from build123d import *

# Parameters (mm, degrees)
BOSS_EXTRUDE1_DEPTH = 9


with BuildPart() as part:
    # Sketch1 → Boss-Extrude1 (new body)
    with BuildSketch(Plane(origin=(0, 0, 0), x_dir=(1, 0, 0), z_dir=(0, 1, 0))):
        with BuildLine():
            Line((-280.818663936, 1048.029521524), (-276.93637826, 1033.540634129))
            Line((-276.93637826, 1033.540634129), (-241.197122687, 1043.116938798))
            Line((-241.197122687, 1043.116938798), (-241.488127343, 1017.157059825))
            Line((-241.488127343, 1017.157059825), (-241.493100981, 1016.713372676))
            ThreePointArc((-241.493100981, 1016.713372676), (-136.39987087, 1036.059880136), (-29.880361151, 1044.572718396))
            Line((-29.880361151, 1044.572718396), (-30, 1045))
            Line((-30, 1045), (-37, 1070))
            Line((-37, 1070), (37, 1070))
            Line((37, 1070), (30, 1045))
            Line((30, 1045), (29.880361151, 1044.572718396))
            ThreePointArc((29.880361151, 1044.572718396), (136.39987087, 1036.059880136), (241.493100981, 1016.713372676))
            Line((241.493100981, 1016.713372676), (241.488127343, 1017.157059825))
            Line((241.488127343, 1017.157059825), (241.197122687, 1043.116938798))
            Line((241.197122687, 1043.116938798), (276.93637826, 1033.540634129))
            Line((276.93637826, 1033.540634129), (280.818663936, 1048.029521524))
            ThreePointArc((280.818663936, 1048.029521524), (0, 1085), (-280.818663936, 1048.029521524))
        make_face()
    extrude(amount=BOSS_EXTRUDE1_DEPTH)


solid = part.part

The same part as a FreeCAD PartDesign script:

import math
import FreeCAD as App
import Part
import Sketcher

V = App.Vector
Q = App.Units.Quantity

doc = App.newDocument("Part")
params = doc.addObject("Spreadsheet::Sheet", "Params")
for row, (alias, value) in enumerate([
    ("sketch1_radius", "1045 mm"),
    ("sketch1_radius2", "1085 mm"),
    ("sketch1_width", "74 mm"),
    ("sketch1_length", "15 mm"),
    ("sketch1_length2", "37 mm"),
    ("pad1_length", "9 mm"),
], start=1):
    params.set(f"A{row}", alias)
    params.set(f"B{row}", "=" + value)
    params.setAlias(f"B{row}", alias)

body = doc.addObject("PartDesign::Body", "Body")

# Sketch on XZ plane
sketch1 = body.newObject("Sketcher::SketchObject", "Sketch")
sketch1.AttachmentSupport = (doc.getObject("XZ_Plane"), [""])
sketch1.MapMode = "FlatFace"
sketch1.addGeometry(Part.LineSegment(V(-280.818664, -1048.029522, 0), V(-276.936378, -1033.540634, 0)), False)
sketch1.addGeometry(Part.LineSegment(V(-276.936378, -1033.540634, 0), V(-241.197123, -1043.116939, 0)), False)
sketch1.addGeometry(Part.LineSegment(V(-241.197123, -1043.116939, 0), V(-241.488127, -1017.15706, 0)), False)
sketch1.addGeometry(Part.LineSegment(V(-241.488127, -1017.15706, 0), V(-241.493101, -1016.713373, 0)), False)
sketch1.addGeometry(Part.ArcOfCircle(Part.Circle(V(0, 0, 0), V(0, 0, 1), 1045), math.radians(-103.361481), math.radians(-91.638519)), False)
sketch1.addGeometry(Part.LineSegment(V(-29.880361, -1044.572718, 0), V(-30, -1045, 0)), False)
sketch1.addGeometry(Part.LineSegment(V(-30, -1045, 0), V(-37, -1070, 0)), False)
sketch1.addGeometry(Part.LineSegment(V(-37, -1070, 0), V(37, -1070, 0)), False)
sketch1.addGeometry(Part.LineSegment(V(37, -1070, 0), V(30, -1045, 0)), False)
sketch1.addGeometry(Part.LineSegment(V(30, -1045, 0), V(29.880361, -1044.572718, 0)), False)
sketch1.addGeometry(Part.ArcOfCircle(Part.Circle(V(0, 0, 0), V(0, 0, 1), 1045), math.radians(-88.361481), math.radians(-76.638519)), False)
sketch1.addGeometry(Part.LineSegment(V(241.493101, -1016.713373, 0), V(241.488127, -1017.15706, 0)), False)
sketch1.addGeometry(Part.LineSegment(V(241.488127, -1017.15706, 0), V(241.197123, -1043.116939, 0)), False)
sketch1.addGeometry(Part.LineSegment(V(241.197123, -1043.116939, 0), V(276.936378, -1033.540634, 0)), False)
sketch1.addGeometry(Part.LineSegment(V(276.936378, -1033.540634, 0), V(280.818664, -1048.029522, 0)), False)
sketch1.addGeometry(Part.ArcOfCircle(Part.Circle(V(0, 0, 0), V(0, 0, 1), 1085), math.radians(-105), math.radians(-75)), False)
sketch1.addConstraint(Sketcher.Constraint("Coincident", 0, 2, 1, 1))
sketch1.addConstraint(Sketcher.Constraint("Coincident", 1, 2, 2, 1))
sketch1.addConstraint(Sketcher.Constraint("Coincident", 2, 2, 3, 1))
sketch1.addConstraint(Sketcher.Constraint("Coincident", 3, 2, 4, 1))
sketch1.addConstraint(Sketcher.Constraint("Coincident", 4, 2, 5, 1))
sketch1.addConstraint(Sketcher.Constraint("Coincident", 5, 2, 6, 1))
sketch1.addConstraint(Sketcher.Constraint("Coincident", 6, 2, 7, 1))
sketch1.addConstraint(Sketcher.Constraint("Coincident", 7, 2, 8, 1))
sketch1.addConstraint(Sketcher.Constraint("Coincident", 8, 2, 9, 1))
sketch1.addConstraint(Sketcher.Constraint("Coincident", 9, 2, 10, 1))
sketch1.addConstraint(Sketcher.Constraint("Coincident", 10, 2, 11, 1))
sketch1.addConstraint(Sketcher.Constraint("Coincident", 11, 2, 12, 1))
sketch1.addConstraint(Sketcher.Constraint("Coincident", 12, 2, 13, 1))
sketch1.addConstraint(Sketcher.Constraint("Coincident", 13, 2, 14, 1))
sketch1.addConstraint(Sketcher.Constraint("Coincident", 14, 2, 15, 2))
sketch1.addConstraint(Sketcher.Constraint("Coincident", 15, 1, 0, 1))
sketch1.addConstraint(Sketcher.Constraint("Horizontal", 7))
sketch1.addConstraint(Sketcher.Constraint("Coincident", 4, 3, -1, 1))
sketch1.addConstraint(Sketcher.Constraint("Coincident", 10, 3, -1, 1))
sketch1.addConstraint(Sketcher.Constraint("Coincident", 15, 3, -1, 1))
sketch1.addConstraint(Sketcher.Constraint("Equal", 4, 10))
sketch1.addConstraint(Sketcher.Constraint("Symmetric", 5, 2, 8, 2, -2))
sketch1.addConstraint(Sketcher.Constraint("Symmetric", 2, 2, 11, 2, -2))
sketch1.addConstraint(Sketcher.Constraint("Symmetric", 1, 2, 12, 2, -2))
sketch1.addConstraint(Sketcher.Constraint("Symmetric", 0, 2, 13, 2, -2))
sketch1.addConstraint(Sketcher.Constraint("Perpendicular", 0, 1))
sketch1.addConstraint(Sketcher.Constraint("Parallel", 2, 3))
sketch1.addConstraint(Sketcher.Constraint("Parallel", 5, 6))
sketch1.addConstraint(Sketcher.Constraint("Parallel", 8, 9))
sketch1.addConstraint(Sketcher.Constraint("Parallel", 11, 12))
sketch1.addConstraint(Sketcher.Constraint("Perpendicular", 13, 14))
sketch1.addConstraint(Sketcher.Constraint("Equal", 3, 5))
sketch1.addConstraint(Sketcher.Constraint("Equal", 2, 6))
sketch1.addConstraint(Sketcher.Constraint("Equal", 6, 8))
sketch1.addConstraint(Sketcher.Constraint("Radius", 4, Q("1045 mm")))
sketch1.addConstraint(Sketcher.Constraint("Radius", 15, Q("1085 mm")))
sketch1.addConstraint(Sketcher.Constraint("DistanceX", 7, 1, 7, 2, Q("74 mm")))
sketch1.addConstraint(Sketcher.Constraint("Angle", 0, Q("75 deg")))
sketch1.addConstraint(Sketcher.Constraint("Distance", 0, Q("15 mm")))
sketch1.addConstraint(Sketcher.Constraint("Distance", 1, Q("37 mm")))
sketch1.addConstraint(Sketcher.Constraint("DistanceX", 5, 2, -1, 1, Q("30 mm")))
sketch1.addConstraint(Sketcher.Constraint("DistanceY", 5, 2, -1, 1, Q("1045 mm")))
sketch1.addConstraint(Sketcher.Constraint("DistanceY", 6, 2, -1, 1, Q("1070 mm")))
sketch1.addConstraint(Sketcher.Constraint("DistanceX", 3, 2, -1, 1, Q("241.493101 mm")))
sketch1.setExpression("Constraints[34]", "Params.sketch1_radius")
sketch1.setExpression("Constraints[35]", "Params.sketch1_radius2")
sketch1.setExpression("Constraints[36]", "Params.sketch1_width")
sketch1.setExpression("Constraints[38]", "Params.sketch1_length")
sketch1.setExpression("Constraints[39]", "Params.sketch1_length2")
pad1 = body.newObject("PartDesign::Pad", "Pad")
pad1.Profile = sketch1
pad1.setExpression("Length", "Params.pad1_length")
pad1.Reversed = True

doc.recompute()
